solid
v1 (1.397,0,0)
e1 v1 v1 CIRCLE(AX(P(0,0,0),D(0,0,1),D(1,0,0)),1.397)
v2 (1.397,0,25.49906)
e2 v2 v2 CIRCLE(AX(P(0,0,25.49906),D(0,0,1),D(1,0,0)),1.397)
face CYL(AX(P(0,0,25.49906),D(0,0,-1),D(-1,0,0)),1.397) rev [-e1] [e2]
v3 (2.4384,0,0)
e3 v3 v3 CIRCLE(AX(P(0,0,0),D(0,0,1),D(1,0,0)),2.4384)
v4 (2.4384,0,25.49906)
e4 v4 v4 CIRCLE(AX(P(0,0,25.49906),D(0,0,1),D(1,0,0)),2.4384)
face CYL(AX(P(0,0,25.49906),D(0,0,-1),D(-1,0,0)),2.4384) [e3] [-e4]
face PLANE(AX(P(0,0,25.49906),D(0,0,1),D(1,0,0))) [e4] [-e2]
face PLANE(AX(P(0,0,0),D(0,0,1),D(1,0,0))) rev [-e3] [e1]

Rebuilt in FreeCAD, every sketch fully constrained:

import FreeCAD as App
import Part
import Sketcher

V = App.Vector
Q = App.Units.Quantity

doc = App.newDocument("Part")
body = doc.addObject("PartDesign::Body", "Body")

# Sketch on XY plane
sketch1 = body.newObject("Sketcher::SketchObject", "Sketch")
sketch1.AttachmentSupport = (doc.getObject("XY_Plane"), [""])
sketch1.MapMode = "FlatFace"
sketch1.addGeometry([
    Part.Circle(V(0, 0, 0), V(0, 0, 1), 2.4),
    Part.Circle(V(0, 0, 0), V(0, 0, 1), 1.4),
], False)
sketch1.addConstraint([
    Sketcher.Constraint("Coincident", 0, 3, -1, 1),
    Sketcher.Constraint("Coincident", 1, 3, -1, 1),
    Sketcher.Constraint("Diameter", 1, Q("0.11 in")),
    Sketcher.Constraint("Diameter", 0, Q("0.192 in")),
])
pad1 = body.newObject("PartDesign::Pad", "Pad")
pad1.Profile = sketch1
pad1.Length = Q("1.0039 in")

doc.recompute()
